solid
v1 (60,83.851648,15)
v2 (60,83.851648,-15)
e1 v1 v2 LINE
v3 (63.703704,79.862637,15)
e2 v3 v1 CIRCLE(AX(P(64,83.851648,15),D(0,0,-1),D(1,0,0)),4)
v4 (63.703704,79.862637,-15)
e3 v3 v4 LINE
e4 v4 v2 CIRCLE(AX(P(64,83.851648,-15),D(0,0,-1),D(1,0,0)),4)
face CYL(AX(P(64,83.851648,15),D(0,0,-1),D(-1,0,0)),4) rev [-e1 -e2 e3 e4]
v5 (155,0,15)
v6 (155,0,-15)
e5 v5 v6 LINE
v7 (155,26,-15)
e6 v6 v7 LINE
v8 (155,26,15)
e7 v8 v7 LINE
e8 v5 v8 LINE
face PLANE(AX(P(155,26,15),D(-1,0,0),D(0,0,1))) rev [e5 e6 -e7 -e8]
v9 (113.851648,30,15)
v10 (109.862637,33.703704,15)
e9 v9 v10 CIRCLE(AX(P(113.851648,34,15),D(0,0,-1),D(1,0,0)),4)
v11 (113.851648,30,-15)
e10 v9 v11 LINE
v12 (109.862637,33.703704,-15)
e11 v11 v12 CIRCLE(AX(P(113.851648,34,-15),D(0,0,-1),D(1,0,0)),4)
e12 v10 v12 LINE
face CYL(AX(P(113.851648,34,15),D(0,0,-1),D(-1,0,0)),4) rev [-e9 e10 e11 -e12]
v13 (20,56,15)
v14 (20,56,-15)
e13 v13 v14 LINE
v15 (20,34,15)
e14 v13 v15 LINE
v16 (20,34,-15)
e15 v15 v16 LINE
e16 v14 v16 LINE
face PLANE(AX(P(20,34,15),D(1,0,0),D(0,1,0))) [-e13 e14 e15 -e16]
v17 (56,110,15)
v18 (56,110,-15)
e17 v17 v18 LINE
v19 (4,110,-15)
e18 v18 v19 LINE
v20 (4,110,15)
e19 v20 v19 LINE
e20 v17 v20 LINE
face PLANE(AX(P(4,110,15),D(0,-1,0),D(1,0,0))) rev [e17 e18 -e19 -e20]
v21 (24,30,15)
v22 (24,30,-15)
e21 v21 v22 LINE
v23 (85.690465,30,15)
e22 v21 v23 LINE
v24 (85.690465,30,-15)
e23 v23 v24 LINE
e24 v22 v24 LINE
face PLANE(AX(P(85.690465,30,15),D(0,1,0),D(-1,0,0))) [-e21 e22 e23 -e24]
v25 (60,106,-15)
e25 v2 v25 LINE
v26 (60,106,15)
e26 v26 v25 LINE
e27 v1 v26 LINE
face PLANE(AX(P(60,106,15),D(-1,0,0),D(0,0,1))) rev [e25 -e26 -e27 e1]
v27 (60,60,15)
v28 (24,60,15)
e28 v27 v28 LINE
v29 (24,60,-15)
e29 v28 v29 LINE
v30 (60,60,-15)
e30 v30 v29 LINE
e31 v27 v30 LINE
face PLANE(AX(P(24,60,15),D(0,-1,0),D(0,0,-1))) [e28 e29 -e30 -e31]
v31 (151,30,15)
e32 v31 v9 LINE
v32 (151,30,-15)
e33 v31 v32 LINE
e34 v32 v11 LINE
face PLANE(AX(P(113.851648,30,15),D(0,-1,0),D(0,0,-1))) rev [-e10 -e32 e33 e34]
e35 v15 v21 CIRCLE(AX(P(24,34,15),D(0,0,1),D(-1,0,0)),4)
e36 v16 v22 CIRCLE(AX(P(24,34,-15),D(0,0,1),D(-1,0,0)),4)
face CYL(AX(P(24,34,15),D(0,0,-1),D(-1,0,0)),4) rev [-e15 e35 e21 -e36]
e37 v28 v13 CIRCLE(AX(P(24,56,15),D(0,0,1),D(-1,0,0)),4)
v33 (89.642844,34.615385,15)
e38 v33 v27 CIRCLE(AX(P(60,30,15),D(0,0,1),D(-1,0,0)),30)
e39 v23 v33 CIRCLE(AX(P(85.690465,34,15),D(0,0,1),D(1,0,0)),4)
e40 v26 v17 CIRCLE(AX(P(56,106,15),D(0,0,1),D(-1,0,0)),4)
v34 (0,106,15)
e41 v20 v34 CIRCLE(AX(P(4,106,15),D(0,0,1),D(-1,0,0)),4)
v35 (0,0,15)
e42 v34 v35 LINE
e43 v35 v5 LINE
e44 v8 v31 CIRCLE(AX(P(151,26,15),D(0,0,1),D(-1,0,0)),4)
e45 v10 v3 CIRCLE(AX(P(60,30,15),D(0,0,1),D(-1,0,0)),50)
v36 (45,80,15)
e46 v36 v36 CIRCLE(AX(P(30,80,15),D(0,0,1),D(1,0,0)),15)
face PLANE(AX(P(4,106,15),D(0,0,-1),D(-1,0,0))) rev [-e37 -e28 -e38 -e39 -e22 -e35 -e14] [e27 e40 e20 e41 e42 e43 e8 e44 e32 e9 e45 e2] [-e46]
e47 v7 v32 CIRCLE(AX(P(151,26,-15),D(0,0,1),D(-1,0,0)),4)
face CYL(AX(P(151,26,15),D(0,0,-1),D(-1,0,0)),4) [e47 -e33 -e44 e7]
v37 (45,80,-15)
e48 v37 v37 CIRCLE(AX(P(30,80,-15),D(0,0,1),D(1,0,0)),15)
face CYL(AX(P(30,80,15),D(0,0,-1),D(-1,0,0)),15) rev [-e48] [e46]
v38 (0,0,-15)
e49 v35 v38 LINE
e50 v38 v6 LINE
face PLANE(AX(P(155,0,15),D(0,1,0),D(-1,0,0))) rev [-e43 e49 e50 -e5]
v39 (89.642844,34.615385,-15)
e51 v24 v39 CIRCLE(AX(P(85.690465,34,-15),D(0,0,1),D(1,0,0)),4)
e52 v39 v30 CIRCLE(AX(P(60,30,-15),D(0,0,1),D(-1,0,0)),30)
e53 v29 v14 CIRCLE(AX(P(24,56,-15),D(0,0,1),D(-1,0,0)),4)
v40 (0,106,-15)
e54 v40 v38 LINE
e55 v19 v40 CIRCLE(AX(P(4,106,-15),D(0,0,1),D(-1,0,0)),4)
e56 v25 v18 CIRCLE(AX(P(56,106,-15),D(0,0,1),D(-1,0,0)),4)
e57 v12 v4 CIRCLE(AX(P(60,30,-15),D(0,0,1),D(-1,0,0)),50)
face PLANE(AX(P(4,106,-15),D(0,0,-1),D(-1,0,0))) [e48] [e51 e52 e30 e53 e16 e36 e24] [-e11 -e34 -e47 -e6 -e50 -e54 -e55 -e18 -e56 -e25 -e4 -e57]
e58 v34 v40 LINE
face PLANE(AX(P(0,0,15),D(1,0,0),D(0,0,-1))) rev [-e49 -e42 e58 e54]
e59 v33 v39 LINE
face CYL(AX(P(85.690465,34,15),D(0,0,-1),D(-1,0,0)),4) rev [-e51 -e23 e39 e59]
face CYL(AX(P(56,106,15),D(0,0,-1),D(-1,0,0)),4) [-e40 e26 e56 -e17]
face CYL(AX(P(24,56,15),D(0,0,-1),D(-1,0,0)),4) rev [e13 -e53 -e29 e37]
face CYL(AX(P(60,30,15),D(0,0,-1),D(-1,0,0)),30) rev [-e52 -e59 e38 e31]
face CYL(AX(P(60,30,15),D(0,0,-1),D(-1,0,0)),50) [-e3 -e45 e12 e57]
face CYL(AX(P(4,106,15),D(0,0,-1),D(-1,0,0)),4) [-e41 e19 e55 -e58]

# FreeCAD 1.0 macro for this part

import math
import FreeCAD as App
import Part
import Sketcher

doc = App.newDocument("Part")
body = doc.addObject("PartDesign::Body", "Body")

# Sketch on XY plane
sketch1 = doc.addObject("Sketcher::SketchObject", "Sketch")
body.addObject(sketch1)
sketch1.AttachmentSupport = (doc.XY_Plane, [""])
sketch1.MapMode = "FlatFace"
sketch1.addGeometry([
    Part.LineSegment(App.Vector(0, 106, 0), App.Vector(0, 0, 0)),  # 0
    Part.LineSegment(App.Vector(0, 0, 0), App.Vector(155, 0, 0)),  # 1
    Part.LineSegment(App.Vector(155, 0, 0), App.Vector(155, 26, 0)),  # 2
    Part.ArcOfCircle(Part.Circle(App.Vector(151, 26, 0), App.Vector(0, 0, 1), 4), math.radians(0), math.radians(90)),  # 3
    Part.LineSegment(App.Vector(151, 30, 0), App.Vector(113.9, 30, 0)),  # 4
    Part.ArcOfCircle(Part.Circle(App.Vector(113.9, 34, 0), App.Vector(0, 0, 1), 4), math.radians(-176), math.radians(-90)),  # 5
    Part.ArcOfCircle(Part.Circle(App.Vector(60, 30, 0), App.Vector(0, 0, 1), 50), math.radians(4), math.radians(86)),  # 6
    Part.ArcOfCircle(Part.Circle(App.Vector(64, 83.9, 0), App.Vector(0, 0, 1), 4), math.radians(-180), math.radians(-94)),  # 7
    Part.LineSegment(App.Vector(60, 83.9, 0), App.Vector(60, 106, 0)),  # 8
    Part.ArcOfCircle(Part.Circle(App.Vector(56, 106, 0), App.Vector(0, 0, 1), 4), math.radians(0), math.radians(90)),  # 9
    Part.LineSegment(App.Vector(56, 110, 0), App.Vector(4, 110, 0)),  # 10
    Part.ArcOfCircle(Part.Circle(App.Vector(4, 106, 0), App.Vector(0, 0, 1), 4), math.radians(90), math.radians(180)),  # 11
    Part.LineSegment(App.Vector(85.7, 30, 0), App.Vector(24, 30, 0)),  # 12
    Part.ArcOfCircle(Part.Circle(App.Vector(24, 34, 0), App.Vector(0, 0, 1), 4), math.radians(180), math.radians(270)),  # 13
    Part.LineSegment(App.Vector(20, 34, 0), App.Vector(20, 56, 0)),  # 14
    Part.ArcOfCircle(Part.Circle(App.Vector(24, 56, 0), App.Vector(0, 0, 1), 4), math.radians(90), math.radians(180)),  # 15
    Part.LineSegment(App.Vector(24, 60, 0), App.Vector(60, 60, 0)),  # 16
    Part.ArcOfCircle(Part.Circle(App.Vector(60, 30, 0), App.Vector(0, 0, 1), 30), math.radians(9), math.radians(90)),  # 17
    Part.ArcOfCircle(Part.Circle(App.Vector(85.7, 34, 0), App.Vector(0, 0, 1), 4), math.radians(-90), math.radians(9)),  # 18
    Part.Circle(App.Vector(30, 80, 0), App.Vector(0, 0, 1), 15),  # 19
], False)
sketch1.addConstraint([
    Sketcher.Constraint("Coincident", 0, 2, 1, 1),
    Sketcher.Constraint("Coincident", 1, 2, 2, 1),
    Sketcher.Constraint("Tangent", 2, 2, 3, 1),
    Sketcher.Constraint("Tangent", 3, 2, 4, 1),
    Sketcher.Constraint("Tangent", 4, 2, 5, 2),
    Sketcher.Constraint("Tangent", 5, 1, 6, 1),
    Sketcher.Constraint("Tangent", 6, 2, 7, 2),
    Sketcher.Constraint("Tangent", 7, 1, 8, 1),
    Sketcher.Constraint("Tangent", 8, 2, 9, 1),
    Sketcher.Constraint("Tangent", 9, 2, 10, 1),
    Sketcher.Constraint("Tangent", 10, 2, 11, 1),
    Sketcher.Constraint("Tangent", 11, 2, 0, 1),
    Sketcher.Constraint("Tangent", 12, 2, 13, 2),
    Sketcher.Constraint("Tangent", 13, 1, 14, 1),
    Sketcher.Constraint("Tangent", 14, 2, 15, 2),
    Sketcher.Constraint("Tangent", 15, 1, 16, 1),
    Sketcher.Constraint("Tangent", 16, 2, 17, 2),
    Sketcher.Constraint("Tangent", 17, 1, 18, 2),
    Sketcher.Constraint("Tangent", 18, 1, 12, 1),
    Sketcher.Constraint("Vertical", 0),
    Sketcher.Constraint("Horizontal", 1),
    Sketcher.Constraint("Vertical", 2),
    Sketcher.Constraint("Horizontal", 4),
    Sketcher.Constraint("Vertical", 8),
    Sketcher.Constraint("Horizontal", 10),
    Sketcher.Constraint("Horizontal", 12),
    Sketcher.Constraint("Vertical", 14),
    Sketcher.Constraint("Horizontal", 16),
    Sketcher.Constraint("Coincident", 0, 2, -1, 1),
    Sketcher.Constraint("Coincident", 17, 3, 6, 3),
    Sketcher.Constraint("Equal", 3, 5),
    Sketcher.Constraint("Equal", 5, 7),
    Sketcher.Constraint("Equal", 7, 9),
    Sketcher.Constraint("Equal", 9, 11),
    Sketcher.Constraint("Equal", 11, 13),
    Sketcher.Constraint("Equal", 13, 15),
    Sketcher.Constraint("Equal", 15, 18),
    Sketcher.Constraint("Horizontal", 5, 3, 13, 3),
    Sketcher.Constraint("Horizontal", 17, 3, 3, 2),
    Sketcher.Constraint("Vertical", 17, 3, 7, 1),
    Sketcher.Constraint("Diameter", 19, 30.0),
    Sketcher.Constraint("Radius", 3, 4.0),
    Sketcher.Constraint("Radius", 6, 50.0),
    Sketcher.Constraint("Radius", 17, 30.0),
    Sketcher.Constraint("DistanceX", 1, 1, 1, 2, 155.0),
    Sketcher.Constraint("DistanceX", 10, 2, 10, 1, 52.0),
    Sketcher.Constraint("DistanceX", 16, 1, 16, 2, 36.0),
    Sketcher.Constraint("DistanceY", 0, 2, 0, 1, 106.0),
    Sketcher.Constraint("DistanceY", 2, 1, 2, 2, 26.0),
    Sketcher.Constraint("DistanceX", -1, 1, 19, 3, 30.0),
    Sketcher.Constraint("DistanceY", -1, 1, 19, 3, 80.0),
])
pad1 = doc.addObject("PartDesign::Pad", "Pad")
body.addObject(pad1)
pad1.Profile = sketch1
pad1.Length = 30
pad1.Midplane = True

doc.recompute()
